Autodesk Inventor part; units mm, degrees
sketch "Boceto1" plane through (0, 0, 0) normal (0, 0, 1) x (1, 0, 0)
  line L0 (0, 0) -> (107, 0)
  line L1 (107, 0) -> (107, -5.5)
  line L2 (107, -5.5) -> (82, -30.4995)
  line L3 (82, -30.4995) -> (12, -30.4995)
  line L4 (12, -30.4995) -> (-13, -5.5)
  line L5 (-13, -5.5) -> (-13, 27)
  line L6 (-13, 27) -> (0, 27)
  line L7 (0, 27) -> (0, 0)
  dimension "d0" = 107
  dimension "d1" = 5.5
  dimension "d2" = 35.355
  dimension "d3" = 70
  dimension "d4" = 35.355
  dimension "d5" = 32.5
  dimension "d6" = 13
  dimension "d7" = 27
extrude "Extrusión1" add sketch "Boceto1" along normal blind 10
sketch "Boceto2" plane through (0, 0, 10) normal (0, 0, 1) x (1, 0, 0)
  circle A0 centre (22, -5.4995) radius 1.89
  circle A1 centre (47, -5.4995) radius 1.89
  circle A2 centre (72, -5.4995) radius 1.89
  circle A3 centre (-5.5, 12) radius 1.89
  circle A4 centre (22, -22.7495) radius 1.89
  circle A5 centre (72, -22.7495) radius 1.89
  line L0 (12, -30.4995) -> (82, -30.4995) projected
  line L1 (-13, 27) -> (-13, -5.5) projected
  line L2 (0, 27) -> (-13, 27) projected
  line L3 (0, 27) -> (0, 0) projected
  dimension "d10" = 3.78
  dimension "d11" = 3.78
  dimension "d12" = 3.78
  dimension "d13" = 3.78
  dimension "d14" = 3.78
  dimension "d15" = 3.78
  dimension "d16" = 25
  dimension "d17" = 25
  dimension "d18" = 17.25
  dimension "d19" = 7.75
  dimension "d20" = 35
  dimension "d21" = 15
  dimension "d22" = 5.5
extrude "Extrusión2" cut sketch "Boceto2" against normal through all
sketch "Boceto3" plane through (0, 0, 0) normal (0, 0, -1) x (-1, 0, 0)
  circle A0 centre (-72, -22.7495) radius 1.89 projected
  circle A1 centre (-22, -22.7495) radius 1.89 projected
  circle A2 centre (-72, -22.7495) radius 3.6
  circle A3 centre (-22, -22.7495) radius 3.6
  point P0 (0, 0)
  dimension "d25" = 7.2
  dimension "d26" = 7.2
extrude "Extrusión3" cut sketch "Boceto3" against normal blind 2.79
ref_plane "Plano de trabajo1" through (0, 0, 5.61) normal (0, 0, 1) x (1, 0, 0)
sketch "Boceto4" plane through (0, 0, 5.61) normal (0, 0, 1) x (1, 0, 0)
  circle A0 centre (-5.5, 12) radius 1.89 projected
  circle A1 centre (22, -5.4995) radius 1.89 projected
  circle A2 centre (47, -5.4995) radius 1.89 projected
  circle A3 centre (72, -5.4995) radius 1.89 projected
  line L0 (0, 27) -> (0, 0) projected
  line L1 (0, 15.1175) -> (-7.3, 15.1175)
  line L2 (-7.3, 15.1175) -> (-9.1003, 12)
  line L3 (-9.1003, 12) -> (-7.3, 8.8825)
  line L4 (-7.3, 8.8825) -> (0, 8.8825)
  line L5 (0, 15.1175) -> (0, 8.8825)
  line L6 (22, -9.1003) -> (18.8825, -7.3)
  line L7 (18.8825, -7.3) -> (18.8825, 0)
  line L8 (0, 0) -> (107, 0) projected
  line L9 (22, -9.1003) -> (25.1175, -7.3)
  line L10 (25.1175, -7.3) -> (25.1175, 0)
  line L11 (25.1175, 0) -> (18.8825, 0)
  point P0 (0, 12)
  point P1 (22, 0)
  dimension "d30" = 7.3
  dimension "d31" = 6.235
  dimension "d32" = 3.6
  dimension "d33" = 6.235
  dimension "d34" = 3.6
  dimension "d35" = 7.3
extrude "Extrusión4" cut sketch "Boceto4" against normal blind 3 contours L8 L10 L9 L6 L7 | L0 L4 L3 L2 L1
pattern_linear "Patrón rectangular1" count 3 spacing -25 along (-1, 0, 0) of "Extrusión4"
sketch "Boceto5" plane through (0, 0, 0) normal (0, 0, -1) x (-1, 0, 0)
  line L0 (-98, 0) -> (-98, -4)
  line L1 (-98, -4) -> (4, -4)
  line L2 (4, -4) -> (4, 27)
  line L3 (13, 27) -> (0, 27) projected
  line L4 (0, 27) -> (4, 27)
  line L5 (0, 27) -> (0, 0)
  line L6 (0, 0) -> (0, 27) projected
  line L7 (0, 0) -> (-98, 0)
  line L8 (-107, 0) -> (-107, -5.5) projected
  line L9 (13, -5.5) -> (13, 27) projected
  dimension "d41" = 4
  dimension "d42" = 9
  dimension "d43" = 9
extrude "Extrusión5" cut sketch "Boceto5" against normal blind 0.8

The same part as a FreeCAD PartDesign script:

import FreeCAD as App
import Part
import Sketcher

V = App.Vector


def add_polygon(sketch, points):
    """Adds a closed chain of lines whose ends are joined by coincident constraints."""
    first, n = sketch.GeometryCount, len(points)
    for a, b in zip(points, points[1:] + points[:1]):
        sketch.addGeometry(Part.LineSegment(App.Vector(*a, 0), App.Vector(*b, 0)), False)
    for i in range(n):
        sketch.addConstraint(Sketcher.Constraint("Coincident", first + i, 2, first + (i + 1) % n, 1))

doc = App.newDocument("Part")
params = doc.addObject("Spreadsheet::Sheet", "Params")
for row, (alias, value) in enumerate([
    ("sketch1_width", "107 mm"),
    ("sketch1_width2", "13 mm"),
    ("sketch1_width3", "70 mm"),
    ("sketch1_height", "27 mm"),
    ("sketch1_height2", "32.5 mm"),
    ("pad1_length", "10 mm"),
    ("sketch2_diameter", "3.78 mm"),
    ("sketch3_diameter", "7.2 mm"),
    ("sketch3_diameter2", "3.78 mm"),
    ("pocket2_length", "2.79 mm"),
    ("sketch4_width", "7.3 mm"),
    ("sketch4_length", "3.6 mm"),
    ("sketch4_diameter", "3.78 mm"),
    ("pocket3_length", "3 mm"),
    ("linearpattern_pitch", "25 mm"),
    ("sketch5_width", "4 mm"),
    ("sketch5_width2", "98 mm"),
    ("sketch5_height", "31 mm"),
    ("pocket4_length", "0.8 mm"),
], start=1):
    params.set(f"A{row}", alias)
    params.set(f"B{row}", "=" + value)
    params.setAlias(f"B{row}", alias)

body = doc.addObject("PartDesign::Body", "Body")

# Sketch on XY plane
sketch1 = body.newObject("Sketcher::SketchObject", "Sketch")
sketch1.AttachmentSupport = (doc.getObject("XY_Plane"), [""])
sketch1.MapMode = "FlatFace"
add_polygon(sketch1, [(107, 0), (0, 0), (0, 27), (-13, 27), (-13, -6), (12, -30), (82, -30), (107, -6)])  # lines 0-7
sketch1.addConstraint([
    Sketcher.Constraint("Horizontal", 0),
    Sketcher.Constraint("Vertical", 1),
    Sketcher.Constraint("Horizontal", 2),
    Sketcher.Constraint("Vertical", 3),
    Sketcher.Constraint("Horizontal", 5),
    Sketcher.Constraint("Vertical", 7),
    Sketcher.Constraint("Coincident", 0, 2, -1, 1),
    Sketcher.Constraint("Perpendicular", 4, 6),
    Sketcher.Constraint("Horizontal", 3, 2, 6, 2),
    Sketcher.Constraint("Equal", 4, 6),
    Sketcher.Constraint("DistanceX", 0, 2, 0, 1, 107.0),
    Sketcher.Constraint("DistanceX", 2, 2, 2, 1, 13.0),
    Sketcher.Constraint("DistanceX", 5, 1, 5, 2, 70.0),
    Sketcher.Constraint("DistanceY", 1, 1, 1, 2, 27.0),
    Sketcher.Constraint("DistanceY", 3, 2, 3, 1, 32.5),
])
sketch1.setExpression("Constraints[18]", "Params.sketch1_width")
sketch1.setExpression("Constraints[19]", "Params.sketch1_width2")
sketch1.setExpression("Constraints[20]", "Params.sketch1_width3")
sketch1.setExpression("Constraints[21]", "Params.sketch1_height")
sketch1.setExpression("Constraints[22]", "Params.sketch1_height2")
pad1 = body.newObject("PartDesign::Pad", "Pad")
pad1.Profile = sketch1
pad1.setExpression("Length", "Params.pad1_length")

# Sketch on XY plane
sketch2 = body.newObject("Sketcher::SketchObject", "Sketch001")
sketch2.AttachmentSupport = (doc.getObject("XY_Plane"), [""])
sketch2.MapMode = "FlatFace"
sketch2.AttachmentOffset = App.Placement(V(0, 0, 10), App.Rotation())
sketch2.addGeometry([
    Part.Circle(V(22, -5.5, 0), V(0, 0, 1), 1.9),  # 0
    Part.Circle(V(47, -5.5, 0), V(0, 0, 1), 1.9),  # 1
    Part.Circle(V(72, -5.5, 0), V(0, 0, 1), 1.9),  # 2
    Part.Circle(V(-5.5, 12, 0), V(0, 0, 1), 1.9),  # 3
    Part.Circle(V(22, -22.7, 0), V(0, 0, 1), 1.9),  # 4
    Part.Circle(V(72, -22.7, 0), V(0, 0, 1), 1.9),  # 5
], False)
sketch2.addConstraint([
    Sketcher.Constraint("Equal", 0, 1),
    Sketcher.Constraint("Equal", 1, 2),
    Sketcher.Constraint("Equal", 2, 3),
    Sketcher.Constraint("Equal", 3, 4),
    Sketcher.Constraint("Equal", 4, 5),
    Sketcher.Constraint("Horizontal", 0, 3, 1, 3),
    Sketcher.Constraint("Horizontal", 1, 3, 2, 3),
    Sketcher.Constraint("Horizontal", 4, 3, 5, 3),
    Sketcher.Constraint("Vertical", 0, 3, 4, 3),
    Sketcher.Constraint("Vertical", 2, 3, 5, 3),
    Sketcher.Constraint("Diameter", 0, 3.78),
    Sketcher.Constraint("DistanceX", 0, 3, 1, 3, 25.0),
    Sketcher.Constraint("DistanceX", 1, 3, 2, 3, 25.0),
    Sketcher.Constraint("DistanceX", 3, 3, -1, 1, 5.5),
    Sketcher.Constraint("DistanceY", 4, 3, 0, 3, 17.25),
    Sketcher.Constraint("DistanceX", -1, 1, 0, 3, 22.0),
    Sketcher.Constraint("DistanceY", -1, 1, 3, 3, 12.0),
    Sketcher.Constraint("DistanceY", 0, 3, -1, 1, 5.4995),
])
sketch2.setExpression("Constraints[10]", "Params.sketch2_diameter")
pocket1 = body.newObject("PartDesign::Pocket", "Pocket")
pocket1.Profile = sketch2
pocket1.Type = "ThroughAll"

# Sketch on XY plane
sketch3 = body.newObject("Sketcher::SketchObject", "Sketch002")
sketch3.AttachmentSupport = (doc.getObject("XY_Plane"), [""])
sketch3.MapMode = "FlatFace"
sketch3.addGeometry([
    Part.Circle(V(72, -22.7, 0), V(0, 0, 1), 3.6),
    Part.Circle(V(72, -22.7, 0), V(0, 0, 1), 1.9),
    Part.Circle(V(22, -22.7, 0), V(0, 0, 1), 3.6),
    Part.Circle(V(22, -22.7, 0), V(0, 0, 1), 1.9),
], False)
sketch3.addConstraint([
    Sketcher.Constraint("Coincident", 1, 3, 0, 3),
    Sketcher.Constraint("Coincident", 3, 3, 2, 3),
    Sketcher.Constraint("Equal", 0, 2),
    Sketcher.Constraint("Equal", 1, 3),
    Sketcher.Constraint("Horizontal", 1, 3, 2, 3),
    Sketcher.Constraint("Diameter", 0, 7.2),
    Sketcher.Constraint("Diameter", 1, 3.78),
    Sketcher.Constraint("DistanceX", -1, 1, 0, 3, 72.0),
    Sketcher.Constraint("DistanceX", -1, 1, 2, 3, 22.0),
    Sketcher.Constraint("DistanceY", 0, 3, -1, 1, 22.7495),
])
sketch3.setExpression("Constraints[5]", "Params.sketch3_diameter")
sketch3.setExpression("Constraints[6]", "Params.sketch3_diameter2")
pocket2 = body.newObject("PartDesign::Pocket", "Pocket001")
pocket2.Profile = sketch3
pocket2.setExpression("Length", "Params.pocket2_length")
pocket2.Reversed = True

# Sketch on XY plane
sketch4 = body.newObject("Sketcher::SketchObject", "Sketch003")
sketch4.AttachmentSupport = (doc.getObject("XY_Plane"), [""])
sketch4.MapMode = "FlatFace"
sketch4.AttachmentOffset = App.Placement(V(0, 0, 5.61), App.Rotation())
add_polygon(sketch4, [(25.1, 0), (18.9, 0), (18.9, -7.3), (22, -9.1), (25.1, -7.3)])  # lines 0-4
sketch4.addGeometry(Part.Circle(V(22, -5.5, 0), V(0, 0, 1), 1.9), False)  # 5
add_polygon(sketch4, [(0, 8.9), (0, 15.1), (-7.3, 15.1), (-9.1, 12), (-7.3, 8.9)])  # lines 6-10
sketch4.addGeometry(Part.Circle(V(-5.5, 12, 0), V(0, 0, 1), 1.9), False)  # 11
sketch4.addConstraint([
    Sketcher.Constraint("Horizontal", 0),
    Sketcher.Constraint("Vertical", 1),
    Sketcher.Constraint("Vertical", 4),
    Sketcher.Constraint("Vertical", 6),
    Sketcher.Constraint("Horizontal", 7),
    Sketcher.Constraint("Horizontal", 10),
    Sketcher.Constraint("Equal", 5, 11),
    Sketcher.Constraint("PointOnObject", 0, 2, -1),
    Sketcher.Constraint("PointOnObject", 6, 2, -2),
    Sketcher.Constraint("Perpendicular", 2, 8),
    Sketcher.Constraint("Perpendicular", 3, 9),
    Sketcher.Constraint("Horizontal", 1, 2, 3, 2),
    Sketcher.Constraint("Horizontal", 11, 3, 8, 2),
    Sketcher.Constraint("Vertical", 5, 3, 2, 2),
    Sketcher.Constraint("Vertical", 7, 2, 9, 2),
    Sketcher.Constraint("Equal", 10, 1),
    Sketcher.Constraint("Equal", 0, 6),
    Sketcher.Constraint("Equal", 2, 3),
    Sketcher.Constraint("DistanceX", 7, 2, 7, 1, 7.3),
    Sketcher.Constraint("Distance", 2, 3.6),
    Sketcher.Constraint("Diameter", 5, 3.78),
    Sketcher.Constraint("DistanceX", 0, 2, 0, 1, 6.235),
    Sketcher.Constraint("DistanceX", -1, 1, 5, 3, 22.0),
    Sketcher.Constraint("DistanceY", -1, 1, 11, 3, 12.0),
    Sketcher.Constraint("DistanceX", 11, 3, -1, 1, 5.5),
    Sketcher.Constraint("DistanceY", 5, 3, 6, 2, 20.617),
])
sketch4.setExpression("Constraints[28]", "Params.sketch4_width")
sketch4.setExpression("Constraints[29]", "Params.sketch4_length")
sketch4.setExpression("Constraints[30]", "Params.sketch4_diameter")
pocket3 = body.newObject("PartDesign::Pocket", "Pocket002")
pocket3.Profile = sketch4
pocket3.setExpression("Length", "Params.pocket3_length")
doc.recompute()

linearpattern = body.newObject("PartDesign::LinearPattern", "LinearPattern")
linearpattern.Originals = [pocket3]
linearpattern.Direction = (doc.getObject("X_Axis"), [""])
linearpattern.Mode = "offset"
linearpattern.setExpression("Offset", "Params.linearpattern_pitch")
linearpattern.Occurrences = 3
body.Tip = linearpattern

# Sketch on XY plane
sketch5 = body.newObject("Sketcher::SketchObject", "Sketch004")
sketch5.AttachmentSupport = (doc.getObject("XY_Plane"), [""])
sketch5.MapMode = "FlatFace"
add_polygon(sketch5, [(0, 0), (98, 0), (98, -4), (-4, -4), (-4, 27), (0, 27)])  # lines 0-5
sketch5.addConstraint([
    Sketcher.Constraint("Horizontal", 0),
    Sketcher.Constraint("Vertical", 1),
    Sketcher.Constraint("Horizontal", 2),
    Sketcher.Constraint("Vertical", 3),
    Sketcher.Constraint("Horizontal", 4),
    Sketcher.Constraint("Vertical", 5),
    Sketcher.Constraint("Coincident", 5, 2, -1, 1),
    Sketcher.Constraint("Equal", 4, 1),
    Sketcher.Constraint("DistanceX", 4, 1, 4, 2, 4.0),
    Sketcher.Constraint("DistanceX", 0, 1, 0, 2, 98.0),
    Sketcher.Constraint("DistanceY", 3, 1, 3, 2, 31.0),
])
sketch5.setExpression("Constraints[14]", "Params.sketch5_width")
sketch5.setExpression("Constraints[15]", "Params.sketch5_width2")
sketch5.setExpression("Constraints[16]", "Params.sketch5_height")
pocket4 = body.newObject("PartDesign::Pocket", "Pocket003")
pocket4.Profile = sketch5
pocket4.setExpression("Length", "Params.pocket4_length")
pocket4.Reversed = True

doc.recompute()
